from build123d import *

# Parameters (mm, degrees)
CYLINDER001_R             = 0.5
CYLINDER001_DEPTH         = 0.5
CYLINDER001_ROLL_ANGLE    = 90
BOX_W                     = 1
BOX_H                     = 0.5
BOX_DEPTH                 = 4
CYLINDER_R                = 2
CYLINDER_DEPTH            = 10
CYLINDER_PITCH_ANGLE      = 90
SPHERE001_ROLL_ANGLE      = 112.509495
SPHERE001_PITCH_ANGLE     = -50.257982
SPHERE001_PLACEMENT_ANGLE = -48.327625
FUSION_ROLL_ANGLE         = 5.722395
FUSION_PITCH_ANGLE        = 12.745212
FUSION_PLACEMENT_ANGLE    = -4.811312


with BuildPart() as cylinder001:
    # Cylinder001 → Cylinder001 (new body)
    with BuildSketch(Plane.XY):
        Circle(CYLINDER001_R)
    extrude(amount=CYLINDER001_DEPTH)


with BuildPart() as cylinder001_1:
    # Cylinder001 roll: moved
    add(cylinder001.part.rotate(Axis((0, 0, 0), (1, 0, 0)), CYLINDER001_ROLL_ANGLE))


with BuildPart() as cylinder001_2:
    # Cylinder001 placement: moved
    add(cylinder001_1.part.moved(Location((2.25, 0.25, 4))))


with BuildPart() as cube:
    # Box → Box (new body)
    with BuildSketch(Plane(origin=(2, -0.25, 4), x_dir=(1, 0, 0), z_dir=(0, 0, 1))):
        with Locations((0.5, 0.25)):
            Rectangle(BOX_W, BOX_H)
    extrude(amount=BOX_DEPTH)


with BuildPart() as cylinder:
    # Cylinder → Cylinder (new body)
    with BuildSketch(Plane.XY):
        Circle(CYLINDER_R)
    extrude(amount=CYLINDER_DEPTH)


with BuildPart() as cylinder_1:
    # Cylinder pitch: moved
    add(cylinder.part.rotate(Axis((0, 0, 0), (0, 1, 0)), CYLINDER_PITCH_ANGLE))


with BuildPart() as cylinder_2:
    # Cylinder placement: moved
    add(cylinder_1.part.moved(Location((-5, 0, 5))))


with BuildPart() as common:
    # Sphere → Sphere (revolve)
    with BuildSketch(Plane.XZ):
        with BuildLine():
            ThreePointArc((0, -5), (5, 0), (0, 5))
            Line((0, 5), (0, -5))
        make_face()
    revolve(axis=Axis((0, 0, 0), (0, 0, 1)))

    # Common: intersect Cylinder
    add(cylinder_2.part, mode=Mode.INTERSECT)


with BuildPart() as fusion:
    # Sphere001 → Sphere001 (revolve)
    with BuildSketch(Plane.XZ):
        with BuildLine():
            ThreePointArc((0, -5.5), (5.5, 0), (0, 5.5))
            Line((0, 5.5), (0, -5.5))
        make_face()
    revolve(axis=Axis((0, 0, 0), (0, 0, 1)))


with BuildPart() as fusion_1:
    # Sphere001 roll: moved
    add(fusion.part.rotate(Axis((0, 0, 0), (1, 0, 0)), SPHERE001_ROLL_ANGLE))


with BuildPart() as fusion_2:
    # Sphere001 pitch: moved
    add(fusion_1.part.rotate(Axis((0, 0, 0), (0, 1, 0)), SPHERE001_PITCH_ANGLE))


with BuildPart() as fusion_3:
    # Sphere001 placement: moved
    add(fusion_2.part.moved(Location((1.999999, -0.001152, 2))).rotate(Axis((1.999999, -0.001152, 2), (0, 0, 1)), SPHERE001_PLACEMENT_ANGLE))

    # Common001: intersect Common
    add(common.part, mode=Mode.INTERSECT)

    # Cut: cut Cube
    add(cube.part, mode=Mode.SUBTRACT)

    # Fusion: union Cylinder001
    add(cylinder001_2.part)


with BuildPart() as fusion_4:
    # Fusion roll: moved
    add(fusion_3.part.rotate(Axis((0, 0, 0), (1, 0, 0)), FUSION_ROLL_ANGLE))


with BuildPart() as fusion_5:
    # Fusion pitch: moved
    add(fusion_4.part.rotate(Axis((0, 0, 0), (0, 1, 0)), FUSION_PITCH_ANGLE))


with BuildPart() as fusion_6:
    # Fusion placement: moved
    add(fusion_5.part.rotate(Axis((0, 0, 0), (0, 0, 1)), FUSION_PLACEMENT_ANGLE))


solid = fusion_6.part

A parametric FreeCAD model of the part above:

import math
import FreeCAD as App
import Part
import Sketcher

doc = App.newDocument("Part")
body = doc.addObject("PartDesign::Body", "Body")

# Sketch on XY plane
sketch1 = doc.addObject("Sketcher::SketchObject", "Sketch")
body.addObject(sketch1)
sketch1.AttachmentSupport = (doc.XY_Plane, [""])
sketch1.MapMode = "FlatFace"
sketch1.addGeometry(Part.Circle(App.Vector(0, 0, 0), App.Vector(0, 0, 1), 0.5), False)
sketch1.addConstraint([
    Sketcher.Constraint("Coincident", 0, 3, -1, 1),
    Sketcher.Constraint("Diameter", 0, 1.0),
])
pad1 = doc.addObject("PartDesign::Pad", "Pad")
body.addObject(pad1)
pad1.Profile = sketch1
pad1.Length = 0.5
body2 = doc.addObject("PartDesign::Body", "Body001")
doc.recompute()

body.Placement = App.Placement(App.Vector(0, 0, 0), App.Rotation(App.Vector(1, 0, 0), 90))
boolean = doc.addObject("PartDesign::Boolean", "Boolean")
body2.addObject(boolean)
boolean.Type = "Fuse"
boolean.addObjects([body])
body3 = doc.addObject("PartDesign::Body", "Body002")
doc.recompute()

body2.Placement = App.Placement(App.Vector(2.25, 0.25, 4), App.Rotation(App.Vector(0, 0, 1), 0))
boolean2 = doc.addObject("PartDesign::Boolean", "Boolean001")
body3.addObject(boolean2)
boolean2.Type = "Fuse"
boolean2.addObjects([body2])
body4 = doc.addObject("PartDesign::Body", "Body003")

# Sketch on XY plane
sketch2 = doc.addObject("Sketcher::SketchObject", "Sketch001")
body4.addObject(sketch2)
sketch2.AttachmentSupport = (doc.getObject("XY_Plane003"), [""])
sketch2.MapMode = "FlatFace"
sketch2.AttachmentOffset = App.Placement(App.Vector(0, 0, 4), App.Rotation())
sketch2.addGeometry([
    Part.LineSegment(App.Vector(2, 0.2, 0), App.Vector(2, -0.2, 0)),
    Part.LineSegment(App.Vector(2, -0.2, 0), App.Vector(3, -0.2, 0)),
    Part.LineSegment(App.Vector(3, -0.2, 0), App.Vector(3, 0.2, 0)),
    Part.LineSegment(App.Vector(3, 0.2, 0), App.Vector(2, 0.2, 0)),
], False)
sketch2.addConstraint([
    Sketcher.Constraint("Coincident", 0, 2, 1, 1),
    Sketcher.Constraint("Coincident", 1, 2, 2, 1),
    Sketcher.Constraint("Coincident", 2, 2, 3, 1),
    Sketcher.Constraint("Coincident", 3, 2, 0, 1),
    Sketcher.Constraint("Vertical", 0),
    Sketcher.Constraint("Horizontal", 1),
    Sketcher.Constraint("Vertical", 2),
    Sketcher.Constraint("Horizontal", 3),
    Sketcher.Constraint("DistanceX", 1, 1, 1, 2, 1.0),
    Sketcher.Constraint("DistanceY", 0, 2, 0, 1, 0.5),
    Sketcher.Constraint("DistanceX", -1, 1, 0, 2, 2.0),
    Sketcher.Constraint("DistanceY", 0, 2, -1, 1, 0.25),
])
pad2 = doc.addObject("PartDesign::Pad", "Pad001")
body4.addObject(pad2)
pad2.Profile = sketch2
pad2.Length = 4
body5 = doc.addObject("PartDesign::Body", "Body004")

# Sketch on XY plane
sketch3 = doc.addObject("Sketcher::SketchObject", "Sketch002")
body5.addObject(sketch3)
sketch3.AttachmentSupport = (doc.getObject("XY_Plane004"), [""])
sketch3.MapMode = "FlatFace"
sketch3.addGeometry(Part.Circle(App.Vector(0, 0, 0), App.Vector(0, 0, 1), 2), False)
sketch3.addConstraint([
    Sketcher.Constraint("Coincident", 0, 3, -1, 1),
    Sketcher.Constraint("Diameter", 0, 4.0),
])
pad3 = doc.addObject("PartDesign::Pad", "Pad002")
body5.addObject(pad3)
pad3.Profile = sketch3
pad3.Length = 10
body6 = doc.addObject("PartDesign::Body", "Body005")
doc.recompute()

body5.Placement = App.Placement(App.Vector(0, 0, 0), App.Rotation(App.Vector(0, 1, 0), 90))
boolean3 = doc.addObject("PartDesign::Boolean", "Boolean002")
body6.addObject(boolean3)
boolean3.Type = "Fuse"
boolean3.addObjects([body5])
body7 = doc.addObject("PartDesign::Body", "Body006")
doc.recompute()

body6.Placement = App.Placement(App.Vector(-5, 0, 5), App.Rotation(App.Vector(0, 0, 1), 0))
boolean4 = doc.addObject("PartDesign::Boolean", "Boolean003")
body7.addObject(boolean4)
boolean4.Type = "Fuse"
boolean4.addObjects([body6])
body8 = doc.addObject("PartDesign::Body", "Body007")

# Sketch on XZ plane
sketch4 = doc.addObject("Sketcher::SketchObject", "Sketch003")
body8.addObject(sketch4)
sketch4.AttachmentSupport = (doc.getObject("XZ_Plane007"), [""])
sketch4.MapMode = "FlatFace"
sketch4.addGeometry([
    Part.ArcOfCircle(Part.Circle(App.Vector(0, 0, 0), App.Vector(0, 0, 1), 5), math.radians(-90), math.radians(90)),
    Part.LineSegment(App.Vector(0, 5, 0), App.Vector(0, -5, 0)),
], False)
sketch4.addConstraint([
    Sketcher.Constraint("Coincident", 0, 1, 1, 2),
    Sketcher.Constraint("Coincident", 1, 1, 0, 2),
    Sketcher.Constraint("Vertical", 1),
    Sketcher.Constraint("Coincident", 0, 3, -1, 1),
    Sketcher.Constraint("PointOnObject", 0, 1, -2),
    Sketcher.Constraint("Radius", 0, 5.0),
])
revolution = doc.addObject("PartDesign::Revolution", "Revolution")
body8.addObject(revolution)
revolution.Profile = sketch4
revolution.ReferenceAxis = (sketch4, ["V_Axis"])
revolution.Angle = 360
doc.recompute()

boolean5 = doc.addObject("PartDesign::Boolean", "Boolean004")
body8.addObject(boolean5)
boolean5.Type = "Common"
boolean5.addObjects([body7])
body9 = doc.addObject("PartDesign::Body", "Body008")

# Sketch on XZ plane
sketch5 = doc.addObject("Sketcher::SketchObject", "Sketch004")
body9.addObject(sketch5)
sketch5.AttachmentSupport = (doc.getObject("XZ_Plane008"), [""])
sketch5.MapMode = "FlatFace"
sketch5.addGeometry([
    Part.ArcOfCircle(Part.Circle(App.Vector(0, 0, 0), App.Vector(0, 0, 1), 6), math.radians(-90), math.radians(90)),
    Part.LineSegment(App.Vector(0, 6, 0), App.Vector(0, -6, 0)),
], False)
sketch5.addConstraint([
    Sketcher.Constraint("Coincident", 0, 1, 1, 2),
    Sketcher.Constraint("Coincident", 1, 1, 0, 2),
    Sketcher.Constraint("Vertical", 1),
    Sketcher.Constraint("Coincident", 0, 3, -1, 1),
    Sketcher.Constraint("PointOnObject", 0, 1, -2),
    Sketcher.Constraint("Radius", 0, 5.5),
])
revolution2 = doc.addObject("PartDesign::Revolution", "Revolution001")
body9.addObject(revolution2)
revolution2.Profile = sketch5
revolution2.ReferenceAxis = (sketch5, ["V_Axis"])
revolution2.Angle = 360
body10 = doc.addObject("PartDesign::Body", "Body009")
doc.recompute()

body9.Placement = App.Placement(App.Vector(0, 0, 0), App.Rotation(App.Vector(1, 0, 0), 112.509495))
boolean6 = doc.addObject("PartDesign::Boolean", "Boolean005")
body10.addObject(boolean6)
boolean6.Type = "Fuse"
boolean6.addObjects([body9])
body11 = doc.addObject("PartDesign::Body", "Body010")
doc.recompute()

body10.Placement = App.Placement(App.Vector(0, 0, 0), App.Rotation(App.Vector(0, 1, 0), 309.742018))
boolean7 = doc.addObject("PartDesign::Boolean", "Boolean006")
body11.addObject(boolean7)
boolean7.Type = "Fuse"
boolean7.addObjects([body10])
body12 = doc.addObject("PartDesign::Body", "Body011")
doc.recompute()

body11.Placement = App.Placement(App.Vector(1.999999, -0.001152, 2), App.Rotation(App.Vector(0, 0, 1), 311.672375))
boolean8 = doc.addObject("PartDesign::Boolean", "Boolean007")
body12.addObject(boolean8)
boolean8.Type = "Fuse"
boolean8.addObjects([body11])
doc.recompute()

boolean9 = doc.addObject("PartDesign::Boolean", "Boolean008")
body12.addObject(boolean9)
boolean9.Type = "Common"
boolean9.addObjects([body8])
doc.recompute()

boolean10 = doc.addObject("PartDesign::Boolean", "Boolean009")
body12.addObject(boolean10)
boolean10.Type = "Cut"
boolean10.addObjects([body4])
doc.recompute()

boolean11 = doc.addObject("PartDesign::Boolean", "Boolean010")
body12.addObject(boolean11)
boolean11.Type = "Fuse"
boolean11.addObjects([body3])
body13 = doc.addObject("PartDesign::Body", "Body012")
doc.recompute()

body12.Placement = App.Placement(App.Vector(0, 0, 0), App.Rotation(App.Vector(1, 0, 0), 5.722395))
boolean12 = doc.addObject("PartDesign::Boolean", "Boolean011")
body13.addObject(boolean12)
boolean12.Type = "Fuse"
boolean12.addObjects([body12])
body14 = doc.addObject("PartDesign::Body", "Body013")
doc.recompute()

body13.Placement = App.Placement(App.Vector(0, 0, 0), App.Rotation(App.Vector(0, 1, 0), 12.745212))
boolean13 = doc.addObject("PartDesign::Boolean", "Boolean012")
body14.addObject(boolean13)
boolean13.Type = "Fuse"
boolean13.addObjects([body13])
body15 = doc.addObject("PartDesign::Body", "Body014")
doc.recompute()

body14.Placement = App.Placement(App.Vector(0, 0, 0), App.Rotation(App.Vector(0, 0, 1), 355.188688))
boolean14 = doc.addObject("PartDesign::Boolean", "Boolean013")
body15.addObject(boolean14)
boolean14.Type = "Fuse"
boolean14.addObjects([body14])

doc.recompute()
